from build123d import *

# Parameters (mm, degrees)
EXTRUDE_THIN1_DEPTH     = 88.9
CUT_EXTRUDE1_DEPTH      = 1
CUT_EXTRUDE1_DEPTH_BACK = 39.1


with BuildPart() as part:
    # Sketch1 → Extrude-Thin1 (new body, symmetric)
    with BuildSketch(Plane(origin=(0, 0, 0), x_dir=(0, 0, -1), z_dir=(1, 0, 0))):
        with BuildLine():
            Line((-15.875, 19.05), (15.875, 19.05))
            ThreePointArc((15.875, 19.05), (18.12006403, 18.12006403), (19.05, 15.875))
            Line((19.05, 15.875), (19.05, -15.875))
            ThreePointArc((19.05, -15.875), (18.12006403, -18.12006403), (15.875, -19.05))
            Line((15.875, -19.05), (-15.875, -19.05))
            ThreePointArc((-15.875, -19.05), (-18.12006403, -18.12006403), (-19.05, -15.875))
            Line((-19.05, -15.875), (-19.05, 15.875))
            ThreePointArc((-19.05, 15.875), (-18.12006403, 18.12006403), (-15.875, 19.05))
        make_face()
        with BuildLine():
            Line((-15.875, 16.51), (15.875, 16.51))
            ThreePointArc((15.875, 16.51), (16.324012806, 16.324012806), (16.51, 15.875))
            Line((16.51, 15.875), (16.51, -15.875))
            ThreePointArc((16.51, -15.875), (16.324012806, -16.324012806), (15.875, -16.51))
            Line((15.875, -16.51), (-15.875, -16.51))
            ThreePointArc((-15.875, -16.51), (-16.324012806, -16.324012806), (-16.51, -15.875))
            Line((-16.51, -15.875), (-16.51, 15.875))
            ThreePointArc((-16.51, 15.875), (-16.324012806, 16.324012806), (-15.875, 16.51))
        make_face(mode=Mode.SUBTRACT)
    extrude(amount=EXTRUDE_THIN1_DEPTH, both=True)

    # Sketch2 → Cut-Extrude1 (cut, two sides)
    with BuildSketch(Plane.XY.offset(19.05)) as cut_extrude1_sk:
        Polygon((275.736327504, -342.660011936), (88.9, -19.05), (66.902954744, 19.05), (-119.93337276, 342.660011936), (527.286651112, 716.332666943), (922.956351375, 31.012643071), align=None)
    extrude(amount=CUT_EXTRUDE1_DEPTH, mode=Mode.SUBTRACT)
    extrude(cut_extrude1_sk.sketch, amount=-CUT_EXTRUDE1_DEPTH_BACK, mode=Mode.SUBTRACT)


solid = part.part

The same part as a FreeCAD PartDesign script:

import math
import FreeCAD as App
import Part
import Sketcher

V = App.Vector
Q = App.Units.Quantity


def add_polygon(sketch, points):
    """Adds a closed chain of lines whose ends are joined by coincident constraints."""
    first, n = sketch.GeometryCount, len(points)
    for a, b in zip(points, points[1:] + points[:1]):
        sketch.addGeometry(Part.LineSegment(App.Vector(*a, 0), App.Vector(*b, 0)), False)
    for i in range(n):
        sketch.addConstraint(Sketcher.Constraint("Coincident", first + i, 2, first + (i + 1) % n, 1))

doc = App.newDocument("Part")
body = doc.addObject("PartDesign::Body", "Body")

sketch1 = doc.addObject("Sketcher::SketchObject", "Sketch")
body.addObject(sketch1)
sketch1.AttachmentSupport = (doc.YZ_Plane, [""])
sketch1.MapMode = "FlatFace"
sketch1.addGeometry(Part.LineSegment(V(19.1, -15.9, 0), V(19.1, 15.9, 0)), False)
sketch1.addGeometry(Part.ArcOfCircle(Part.Circle(V(15.9, 15.9, 0), V(0, 0, 1), 3.2), math.radians(0), math.radians(90)), False)
sketch1.addGeometry(Part.LineSegment(V(15.9, 19.1, 0), V(-15.9, 19.1, 0)), False)
sketch1.addGeometry(Part.ArcOfCircle(Part.Circle(V(-15.9, 15.9, 0), V(0, 0, 1), 3.2), math.radians(90), math.radians(180)), False)
sketch1.addGeometry(Part.LineSegment(V(-19.1, 15.9, 0), V(-19.1, -15.9, 0)), False)
sketch1.addGeometry(Part.ArcOfCircle(Part.Circle(V(-15.9, -15.9, 0), V(0, 0, 1), 3.2), math.radians(-180), math.radians(-90)), False)
sketch1.addGeometry(Part.LineSegment(V(-15.9, -19.1, 0), V(15.9, -19.1, 0)), False)
sketch1.addGeometry(Part.ArcOfCircle(Part.Circle(V(15.9, -15.9, 0), V(0, 0, 1), 3.2), math.radians(-90), math.radians(0)), False)
sketch1.addGeometry(Part.LineSegment(V(16.5, 15.9, 0), V(16.5, -15.9, 0)), False)
sketch1.addGeometry(Part.ArcOfCircle(Part.Circle(V(15.9, -15.9, 0), V(0, 0, 1), 0.6), math.radians(-90), math.radians(0)), False)
sketch1.addGeometry(Part.LineSegment(V(15.9, -16.5, 0), V(-15.9, -16.5, 0)), False)
sketch1.addGeometry(Part.ArcOfCircle(Part.Circle(V(-15.9, -15.9, 0), V(0, 0, 1), 0.6), math.radians(180), math.radians(270)), False)
sketch1.addGeometry(Part.LineSegment(V(-16.5, -15.9, 0), V(-16.5, 15.9, 0)), False)
sketch1.addGeometry(Part.ArcOfCircle(Part.Circle(V(-15.9, 15.9, 0), V(0, 0, 1), 0.6), math.radians(90), math.radians(180)), False)
sketch1.addGeometry(Part.LineSegment(V(-15.9, 16.5, 0), V(15.9, 16.5, 0)), False)
sketch1.addGeometry(Part.ArcOfCircle(Part.Circle(V(15.9, 15.9, 0), V(0, 0, 1), 0.6), math.radians(0), math.radians(90)), False)
sketch1.addConstraint(Sketcher.Constraint("Tangent", 0, 2, 1, 1))
sketch1.addConstraint(Sketcher.Constraint("Tangent", 1, 2, 2, 1))
sketch1.addConstraint(Sketcher.Constraint("Tangent", 2, 2, 3, 1))
sketch1.addConstraint(Sketcher.Constraint("Tangent", 3, 2, 4, 1))
sketch1.addConstraint(Sketcher.Constraint("Tangent", 4, 2, 5, 1))
sketch1.addConstraint(Sketcher.Constraint("Tangent", 5, 2, 6, 1))
sketch1.addConstraint(Sketcher.Constraint("Tangent", 6, 2, 7, 1))
sketch1.addConstraint(Sketcher.Constraint("Tangent", 7, 2, 0, 1))
sketch1.addConstraint(Sketcher.Constraint("Tangent", 8, 2, 9, 2))
sketch1.addConstraint(Sketcher.Constraint("Tangent", 9, 1, 10, 1))
sketch1.addConstraint(Sketcher.Constraint("Tangent", 10, 2, 11, 2))
sketch1.addConstraint(Sketcher.Constraint("Tangent", 11, 1, 12, 1))
sketch1.addConstraint(Sketcher.Constraint("Tangent", 12, 2, 13, 2))
sketch1.addConstraint(Sketcher.Constraint("Tangent", 13, 1, 14, 1))
sketch1.addConstraint(Sketcher.Constraint("Tangent", 14, 2, 15, 2))
sketch1.addConstraint(Sketcher.Constraint("Tangent", 15, 1, 8, 1))
sketch1.addConstraint(Sketcher.Constraint("Vertical", 0))
sketch1.addConstraint(Sketcher.Constraint("Horizontal", 2))
sketch1.addConstraint(Sketcher.Constraint("Vertical", 4))
sketch1.addConstraint(Sketcher.Constraint("Horizontal", 6))
sketch1.addConstraint(Sketcher.Constraint("Vertical", 8))
sketch1.addConstraint(Sketcher.Constraint("Horizontal", 10))
sketch1.addConstraint(Sketcher.Constraint("Vertical", 12))
sketch1.addConstraint(Sketcher.Constraint("Horizontal", 14))
sketch1.addConstraint(Sketcher.Constraint("Coincident", 9, 3, 7, 3))
sketch1.addConstraint(Sketcher.Constraint("Coincident", 11, 3, 5, 3))
sketch1.addConstraint(Sketcher.Constraint("Coincident", 13, 3, 3, 3))
sketch1.addConstraint(Sketcher.Constraint("Equal", 1, 3))
sketch1.addConstraint(Sketcher.Constraint("Equal", 3, 5))
sketch1.addConstraint(Sketcher.Constraint("Equal", 5, 7))
sketch1.addConstraint(Sketcher.Constraint("Equal", 13, 15))
sketch1.addConstraint(Sketcher.Constraint("Symmetric", 1, 3, 5, 3, -1, 1))
sketch1.addConstraint(Sketcher.Constraint("Equal", 14, 0))
sketch1.addConstraint(Sketcher.Constraint("Radius", 1, Q("0.125 in")))
sketch1.addConstraint(Sketcher.Constraint("Radius", 9, Q("0.025 in")))
sketch1.addConstraint(Sketcher.Constraint("DistanceX", 2, 2, 2, 1, Q("1.25 in")))
pad1 = doc.addObject("PartDesign::Pad", "Pad")
body.addObject(pad1)
pad1.Profile = sketch1
pad1.Length = Q("7 in")
pad1.Midplane = True

sketch2 = doc.addObject("Sketcher::SketchObject", "Sketch001")
body.addObject(sketch2)
sketch2.AttachmentSupport = (doc.XY_Plane, [""])
sketch2.MapMode = "FlatFace"
sketch2.AttachmentOffset = App.Placement(V(0, 0, 0.75 * 25.4), App.Rotation())
add_polygon(sketch2, [(89, -19), (276, -343), (923, 31), (527, 716), (-120, 343), (67, 19)])
sketch2.addConstraint(Sketcher.Constraint("Perpendicular", 0, 1))
sketch2.addConstraint(Sketcher.Constraint("Perpendicular", 1, 2))
sketch2.addConstraint(Sketcher.Constraint("Perpendicular", 2, 3))
sketch2.addConstraint(Sketcher.Constraint("Perpendicular", 3, 4))
sketch2.addConstraint(Sketcher.Constraint("Parallel", 4, 5))
sketch2.addConstraint(Sketcher.Constraint("Equal", 0, 4))
sketch2.addConstraint(Sketcher.Constraint("Angle", 0, Q("-60 deg")))
sketch2.addConstraint(Sketcher.Constraint("DistanceX", -1, 1, 5, 2, Q("3.5 in")))
sketch2.addConstraint(Sketcher.Constraint("DistanceY", 5, 2, 4, 2, Q("1.5 in")))
sketch2.addConstraint(Sketcher.Constraint("DistanceY", -1, 1, 4, 2, Q("0.75 in")))
sketch2.addConstraint(Sketcher.Constraint("Distance", 2, 791.339401))
sketch2.addConstraint(Sketcher.Constraint("Distance", 1, 747.34531))
pocket1 = doc.addObject("PartDesign::Pocket", "Pocket")
body.addObject(pocket1)
pocket1.Profile = sketch2
pocket1.Type = "ThroughAll"
pocket1.Midplane = True

doc.recompute()
